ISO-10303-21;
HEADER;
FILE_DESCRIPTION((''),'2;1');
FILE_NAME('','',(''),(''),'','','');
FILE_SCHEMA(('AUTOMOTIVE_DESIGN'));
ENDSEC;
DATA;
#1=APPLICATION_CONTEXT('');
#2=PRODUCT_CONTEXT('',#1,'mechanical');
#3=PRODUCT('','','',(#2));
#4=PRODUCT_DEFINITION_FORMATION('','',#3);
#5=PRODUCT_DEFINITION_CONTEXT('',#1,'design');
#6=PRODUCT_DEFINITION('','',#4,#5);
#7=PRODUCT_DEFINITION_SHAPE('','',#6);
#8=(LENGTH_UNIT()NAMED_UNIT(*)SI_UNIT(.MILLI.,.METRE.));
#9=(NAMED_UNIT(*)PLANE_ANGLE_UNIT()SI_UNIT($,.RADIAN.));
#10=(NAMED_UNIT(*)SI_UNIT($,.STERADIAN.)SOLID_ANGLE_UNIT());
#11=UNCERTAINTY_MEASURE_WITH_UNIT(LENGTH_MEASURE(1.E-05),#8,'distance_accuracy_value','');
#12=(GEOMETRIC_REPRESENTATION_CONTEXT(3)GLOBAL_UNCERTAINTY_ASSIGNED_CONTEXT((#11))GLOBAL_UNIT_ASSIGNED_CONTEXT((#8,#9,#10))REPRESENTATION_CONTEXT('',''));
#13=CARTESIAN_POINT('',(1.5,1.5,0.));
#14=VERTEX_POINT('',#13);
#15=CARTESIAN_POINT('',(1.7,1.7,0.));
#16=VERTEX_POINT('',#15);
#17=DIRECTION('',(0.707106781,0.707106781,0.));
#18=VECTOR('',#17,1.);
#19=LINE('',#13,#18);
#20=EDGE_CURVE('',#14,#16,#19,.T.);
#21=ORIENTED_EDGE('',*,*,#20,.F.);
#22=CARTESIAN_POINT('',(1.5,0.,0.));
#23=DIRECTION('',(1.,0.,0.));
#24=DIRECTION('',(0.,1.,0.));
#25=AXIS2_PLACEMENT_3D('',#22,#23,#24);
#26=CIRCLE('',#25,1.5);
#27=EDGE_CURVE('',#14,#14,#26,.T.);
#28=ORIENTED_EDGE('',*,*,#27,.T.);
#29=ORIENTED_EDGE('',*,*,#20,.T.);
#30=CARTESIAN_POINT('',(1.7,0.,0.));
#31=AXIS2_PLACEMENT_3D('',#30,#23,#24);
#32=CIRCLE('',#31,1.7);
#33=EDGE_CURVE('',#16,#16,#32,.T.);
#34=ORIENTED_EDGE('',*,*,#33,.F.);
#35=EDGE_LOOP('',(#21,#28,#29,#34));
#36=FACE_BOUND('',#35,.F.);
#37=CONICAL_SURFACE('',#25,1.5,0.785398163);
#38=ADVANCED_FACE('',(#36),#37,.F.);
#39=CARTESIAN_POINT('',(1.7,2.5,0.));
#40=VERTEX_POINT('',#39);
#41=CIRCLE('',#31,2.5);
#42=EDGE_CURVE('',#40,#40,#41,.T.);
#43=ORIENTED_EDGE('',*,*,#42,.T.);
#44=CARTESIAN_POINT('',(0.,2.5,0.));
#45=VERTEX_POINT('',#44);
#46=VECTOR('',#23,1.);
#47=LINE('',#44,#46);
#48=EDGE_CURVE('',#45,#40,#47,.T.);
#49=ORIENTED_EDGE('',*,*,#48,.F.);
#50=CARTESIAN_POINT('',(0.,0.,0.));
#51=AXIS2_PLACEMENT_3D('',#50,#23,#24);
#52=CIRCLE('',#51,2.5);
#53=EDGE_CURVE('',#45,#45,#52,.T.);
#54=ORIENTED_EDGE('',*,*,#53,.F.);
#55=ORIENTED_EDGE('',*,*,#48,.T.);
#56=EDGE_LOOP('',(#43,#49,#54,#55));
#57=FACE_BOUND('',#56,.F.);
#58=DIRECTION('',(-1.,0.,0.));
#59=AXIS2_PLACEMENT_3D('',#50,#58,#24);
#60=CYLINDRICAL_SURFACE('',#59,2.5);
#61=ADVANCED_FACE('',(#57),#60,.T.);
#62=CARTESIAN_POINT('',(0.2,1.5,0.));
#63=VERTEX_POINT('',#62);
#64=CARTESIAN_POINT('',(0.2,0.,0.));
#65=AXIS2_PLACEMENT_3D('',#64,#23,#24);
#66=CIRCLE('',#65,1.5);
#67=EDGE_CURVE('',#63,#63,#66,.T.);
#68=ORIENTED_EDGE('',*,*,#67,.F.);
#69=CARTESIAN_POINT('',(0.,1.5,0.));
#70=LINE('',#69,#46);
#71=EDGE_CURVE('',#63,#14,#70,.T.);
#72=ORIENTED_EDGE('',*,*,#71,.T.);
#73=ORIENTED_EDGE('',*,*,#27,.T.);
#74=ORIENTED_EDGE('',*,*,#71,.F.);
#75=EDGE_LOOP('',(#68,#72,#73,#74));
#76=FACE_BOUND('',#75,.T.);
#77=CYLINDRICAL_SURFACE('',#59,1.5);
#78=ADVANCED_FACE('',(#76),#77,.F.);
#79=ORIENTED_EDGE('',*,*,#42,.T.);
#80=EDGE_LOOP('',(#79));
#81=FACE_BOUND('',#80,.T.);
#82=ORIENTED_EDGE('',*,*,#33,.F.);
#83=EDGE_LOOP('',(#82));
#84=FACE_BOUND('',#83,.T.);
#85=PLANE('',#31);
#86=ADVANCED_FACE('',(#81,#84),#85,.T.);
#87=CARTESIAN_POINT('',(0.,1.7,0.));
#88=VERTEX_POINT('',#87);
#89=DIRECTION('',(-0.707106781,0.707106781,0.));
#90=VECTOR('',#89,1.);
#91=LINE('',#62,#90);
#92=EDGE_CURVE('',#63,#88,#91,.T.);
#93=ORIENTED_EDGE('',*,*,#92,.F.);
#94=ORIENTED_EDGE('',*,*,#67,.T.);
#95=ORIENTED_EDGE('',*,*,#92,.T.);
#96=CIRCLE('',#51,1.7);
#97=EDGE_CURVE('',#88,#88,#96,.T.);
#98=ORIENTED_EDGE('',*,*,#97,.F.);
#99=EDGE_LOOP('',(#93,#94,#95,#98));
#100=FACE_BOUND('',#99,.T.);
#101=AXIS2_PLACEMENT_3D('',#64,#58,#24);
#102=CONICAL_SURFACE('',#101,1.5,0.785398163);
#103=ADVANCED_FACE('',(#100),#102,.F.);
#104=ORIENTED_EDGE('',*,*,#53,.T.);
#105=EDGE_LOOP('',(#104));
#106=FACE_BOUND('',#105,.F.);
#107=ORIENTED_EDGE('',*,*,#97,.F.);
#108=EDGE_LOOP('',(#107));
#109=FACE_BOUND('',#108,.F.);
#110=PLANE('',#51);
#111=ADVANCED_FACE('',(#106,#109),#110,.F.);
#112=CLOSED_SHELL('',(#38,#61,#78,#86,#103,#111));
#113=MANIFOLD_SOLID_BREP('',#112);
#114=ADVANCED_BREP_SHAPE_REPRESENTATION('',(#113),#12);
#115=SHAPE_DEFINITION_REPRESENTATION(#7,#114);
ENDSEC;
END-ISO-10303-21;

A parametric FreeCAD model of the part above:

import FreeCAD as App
import Part
import Sketcher


def edges_at(feature, points):
    """Names of the edges that pass closest to the given points."""
    edges = feature.Shape.Edges
    near = lambda p: min(range(len(edges)), key=lambda i: edges[i].distToShape(Part.Vertex(*p))[0])
    return sorted({f"Edge{near(p) + 1}" for p in points})

doc = App.newDocument("Part")
body = doc.addObject("PartDesign::Body", "Body")

# Sketch on YZ plane
sketch1 = body.newObject("Sketcher::SketchObject", "Sketch")
sketch1.AttachmentSupport = (doc.getObject("YZ_Plane"), [""])
sketch1.MapMode = "FlatFace"
sketch1.addGeometry(Part.Circle(App.Vector(0, 0, 0), App.Vector(0, 0, 1), 2.5), False)
sketch1.addGeometry(Part.Circle(App.Vector(0, 0, 0), App.Vector(0, 0, 1), 1.5), False)
sketch1.addConstraint(Sketcher.Constraint("Coincident", 0, 3, -1, 1))
sketch1.addConstraint(Sketcher.Constraint("Coincident", 1, 3, -1, 1))
sketch1.addConstraint(Sketcher.Constraint("Diameter", 0, 5.0))
sketch1.addConstraint(Sketcher.Constraint("Diameter", 1, 3.0))
pad1 = body.newObject("PartDesign::Pad", "Pad")
pad1.Profile = sketch1
pad1.Length = 1.7
doc.recompute()

chamfer = body.newObject("PartDesign::Chamfer", "Chamfer")
chamfer.Base = (pad1, edges_at(pad1, [(0.85, 1.5, 0), (0, -1.5, 0), (1.7, -1.5, 0)]))
chamfer.Size = 0.2

doc.recompute()
